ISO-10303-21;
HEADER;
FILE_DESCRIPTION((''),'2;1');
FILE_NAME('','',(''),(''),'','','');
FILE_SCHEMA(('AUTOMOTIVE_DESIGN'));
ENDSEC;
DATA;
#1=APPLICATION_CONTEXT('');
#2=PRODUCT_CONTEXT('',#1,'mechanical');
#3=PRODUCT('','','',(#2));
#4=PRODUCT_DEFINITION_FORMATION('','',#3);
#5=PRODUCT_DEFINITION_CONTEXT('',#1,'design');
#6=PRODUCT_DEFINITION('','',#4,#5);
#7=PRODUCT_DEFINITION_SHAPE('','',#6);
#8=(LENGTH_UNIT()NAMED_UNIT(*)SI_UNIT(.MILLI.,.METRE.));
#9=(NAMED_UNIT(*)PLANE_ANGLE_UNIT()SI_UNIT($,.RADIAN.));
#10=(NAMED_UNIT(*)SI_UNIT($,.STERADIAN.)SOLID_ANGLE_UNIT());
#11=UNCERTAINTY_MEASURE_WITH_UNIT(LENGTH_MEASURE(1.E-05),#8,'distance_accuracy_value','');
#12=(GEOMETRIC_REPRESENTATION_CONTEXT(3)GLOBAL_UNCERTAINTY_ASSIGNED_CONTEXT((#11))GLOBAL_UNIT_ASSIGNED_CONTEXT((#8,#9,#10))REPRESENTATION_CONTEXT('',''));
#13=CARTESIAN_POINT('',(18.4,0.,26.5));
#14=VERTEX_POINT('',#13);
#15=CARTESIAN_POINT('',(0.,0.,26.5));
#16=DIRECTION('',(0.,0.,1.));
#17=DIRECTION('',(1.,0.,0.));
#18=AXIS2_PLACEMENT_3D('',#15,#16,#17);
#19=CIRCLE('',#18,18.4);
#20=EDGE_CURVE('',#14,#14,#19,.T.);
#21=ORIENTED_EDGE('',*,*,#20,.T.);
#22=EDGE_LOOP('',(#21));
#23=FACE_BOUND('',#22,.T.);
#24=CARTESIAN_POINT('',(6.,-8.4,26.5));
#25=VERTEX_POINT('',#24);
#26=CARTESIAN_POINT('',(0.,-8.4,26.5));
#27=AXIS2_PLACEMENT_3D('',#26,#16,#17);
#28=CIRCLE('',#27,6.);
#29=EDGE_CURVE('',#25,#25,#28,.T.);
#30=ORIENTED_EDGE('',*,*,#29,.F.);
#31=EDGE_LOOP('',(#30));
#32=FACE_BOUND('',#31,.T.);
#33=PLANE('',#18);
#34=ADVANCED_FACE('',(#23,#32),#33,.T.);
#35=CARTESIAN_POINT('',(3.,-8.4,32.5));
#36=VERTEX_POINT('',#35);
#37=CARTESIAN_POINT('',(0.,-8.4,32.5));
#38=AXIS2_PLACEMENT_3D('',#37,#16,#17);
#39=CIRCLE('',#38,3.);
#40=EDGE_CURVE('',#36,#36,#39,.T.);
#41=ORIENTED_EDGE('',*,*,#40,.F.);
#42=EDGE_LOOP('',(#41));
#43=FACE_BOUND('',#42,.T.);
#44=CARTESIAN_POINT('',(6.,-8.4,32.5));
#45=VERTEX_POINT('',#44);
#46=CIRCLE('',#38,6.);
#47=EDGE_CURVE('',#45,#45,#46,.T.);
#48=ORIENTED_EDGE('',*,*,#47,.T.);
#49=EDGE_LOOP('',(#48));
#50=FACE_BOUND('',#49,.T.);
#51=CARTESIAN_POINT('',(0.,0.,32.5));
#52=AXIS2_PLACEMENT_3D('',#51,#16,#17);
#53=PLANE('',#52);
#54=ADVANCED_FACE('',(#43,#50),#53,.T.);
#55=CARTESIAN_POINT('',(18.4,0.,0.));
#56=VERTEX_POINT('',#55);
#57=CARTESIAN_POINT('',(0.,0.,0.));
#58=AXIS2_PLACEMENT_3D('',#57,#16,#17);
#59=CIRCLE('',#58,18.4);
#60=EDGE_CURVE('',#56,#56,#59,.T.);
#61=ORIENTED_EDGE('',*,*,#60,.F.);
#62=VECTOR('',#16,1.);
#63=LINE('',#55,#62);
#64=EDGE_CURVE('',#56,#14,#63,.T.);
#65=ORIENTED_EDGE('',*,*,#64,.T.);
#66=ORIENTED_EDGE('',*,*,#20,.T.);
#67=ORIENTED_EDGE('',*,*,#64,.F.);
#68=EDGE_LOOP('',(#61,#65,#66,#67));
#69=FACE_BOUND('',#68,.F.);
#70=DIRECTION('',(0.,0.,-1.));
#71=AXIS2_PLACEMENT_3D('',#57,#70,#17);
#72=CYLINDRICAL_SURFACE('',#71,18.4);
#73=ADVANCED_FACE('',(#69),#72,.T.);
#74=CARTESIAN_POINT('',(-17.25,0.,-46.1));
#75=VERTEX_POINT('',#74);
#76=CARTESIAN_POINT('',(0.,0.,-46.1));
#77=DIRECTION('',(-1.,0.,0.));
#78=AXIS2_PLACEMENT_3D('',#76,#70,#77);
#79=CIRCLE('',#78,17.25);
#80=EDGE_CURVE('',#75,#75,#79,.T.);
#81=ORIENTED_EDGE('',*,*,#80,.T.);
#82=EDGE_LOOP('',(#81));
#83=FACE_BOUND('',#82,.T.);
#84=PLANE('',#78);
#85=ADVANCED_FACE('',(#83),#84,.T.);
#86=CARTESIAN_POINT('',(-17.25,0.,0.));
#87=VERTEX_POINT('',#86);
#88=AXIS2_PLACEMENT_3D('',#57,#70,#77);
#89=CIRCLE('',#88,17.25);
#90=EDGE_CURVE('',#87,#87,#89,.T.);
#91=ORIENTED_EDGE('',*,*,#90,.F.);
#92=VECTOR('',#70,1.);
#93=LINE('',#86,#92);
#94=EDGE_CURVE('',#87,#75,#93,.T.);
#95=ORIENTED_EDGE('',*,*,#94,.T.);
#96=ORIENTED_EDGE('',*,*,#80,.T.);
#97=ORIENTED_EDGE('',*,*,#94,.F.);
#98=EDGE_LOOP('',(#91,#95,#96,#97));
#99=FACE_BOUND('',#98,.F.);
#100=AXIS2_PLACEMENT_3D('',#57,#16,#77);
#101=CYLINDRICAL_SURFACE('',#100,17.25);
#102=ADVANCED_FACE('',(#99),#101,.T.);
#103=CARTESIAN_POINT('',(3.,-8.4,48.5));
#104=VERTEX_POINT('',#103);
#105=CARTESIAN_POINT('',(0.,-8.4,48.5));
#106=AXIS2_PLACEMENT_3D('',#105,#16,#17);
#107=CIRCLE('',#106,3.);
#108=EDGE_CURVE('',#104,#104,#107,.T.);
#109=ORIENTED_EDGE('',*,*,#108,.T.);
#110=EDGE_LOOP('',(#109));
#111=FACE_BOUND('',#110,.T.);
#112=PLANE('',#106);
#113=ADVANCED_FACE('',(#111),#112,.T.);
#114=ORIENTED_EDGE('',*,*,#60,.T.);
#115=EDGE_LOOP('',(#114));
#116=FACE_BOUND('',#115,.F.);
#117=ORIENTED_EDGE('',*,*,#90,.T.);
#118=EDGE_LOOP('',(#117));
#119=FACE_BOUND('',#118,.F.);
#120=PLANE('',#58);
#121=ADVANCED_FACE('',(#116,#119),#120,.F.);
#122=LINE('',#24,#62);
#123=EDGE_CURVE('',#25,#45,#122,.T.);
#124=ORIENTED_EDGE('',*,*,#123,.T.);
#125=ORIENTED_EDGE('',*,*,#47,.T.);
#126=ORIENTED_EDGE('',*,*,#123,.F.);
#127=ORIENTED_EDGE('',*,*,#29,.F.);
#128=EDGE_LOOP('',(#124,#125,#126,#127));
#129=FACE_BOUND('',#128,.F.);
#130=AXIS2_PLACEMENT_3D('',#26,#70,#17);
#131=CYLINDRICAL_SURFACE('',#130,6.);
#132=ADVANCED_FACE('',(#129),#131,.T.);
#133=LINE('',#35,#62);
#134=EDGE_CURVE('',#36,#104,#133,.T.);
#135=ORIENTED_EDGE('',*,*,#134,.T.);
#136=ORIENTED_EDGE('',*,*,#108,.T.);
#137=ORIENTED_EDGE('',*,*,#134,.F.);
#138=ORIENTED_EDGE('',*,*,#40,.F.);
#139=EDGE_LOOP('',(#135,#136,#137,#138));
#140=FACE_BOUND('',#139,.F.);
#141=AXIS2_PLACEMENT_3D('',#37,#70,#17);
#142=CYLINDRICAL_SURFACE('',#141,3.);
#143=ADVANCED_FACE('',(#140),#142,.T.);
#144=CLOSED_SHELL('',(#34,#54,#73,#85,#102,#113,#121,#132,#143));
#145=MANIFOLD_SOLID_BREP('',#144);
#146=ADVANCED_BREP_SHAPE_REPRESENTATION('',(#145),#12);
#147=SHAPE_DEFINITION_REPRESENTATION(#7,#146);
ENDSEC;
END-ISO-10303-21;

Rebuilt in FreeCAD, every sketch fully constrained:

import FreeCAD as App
import Part
import Sketcher
Q = App.Units.Quantity

doc = App.newDocument("Part")
body = doc.addObject("PartDesign::Body", "Body")

sketch1 = doc.addObject("Sketcher::SketchObject", "Sketch")
body.addObject(sketch1)
sketch1.AttachmentSupport = (doc.XY_Plane, [""])
sketch1.MapMode = "FlatFace"
sketch1.addGeometry(Part.Circle(App.Vector(0, 0, 0), App.Vector(0, 0, 1), 18), False)
sketch1.addConstraint(Sketcher.Constraint("Coincident", 0, 3, -1, 1))
sketch1.addConstraint(Sketcher.Constraint("Diameter", 0, Q("36.8 mm")))
pad1 = doc.addObject("PartDesign::Pad", "Pad")
body.addObject(pad1)
pad1.Profile = sketch1
pad1.Length = 26.5

sketch2 = doc.addObject("Sketcher::SketchObject", "Sketch001")
body.addObject(sketch2)
sketch2.AttachmentSupport = (doc.XY_Plane, [""])
sketch2.MapMode = "FlatFace"
sketch2.addGeometry(Part.Circle(App.Vector(0, 0, 0), App.Vector(0, 0, 1), 17), False)
sketch2.addConstraint(Sketcher.Constraint("Coincident", 0, 3, -1, 1))
sketch2.addConstraint(Sketcher.Constraint("Diameter", 0, Q("34.5 mm")))
pad2 = doc.addObject("PartDesign::Pad", "Pad001")
body.addObject(pad2)
pad2.Profile = sketch2
pad2.Length = 46.1
pad2.Reversed = True

sketch3 = doc.addObject("Sketcher::SketchObject", "Sketch002")
body.addObject(sketch3)
sketch3.AttachmentSupport = (doc.XY_Plane, [""])
sketch3.MapMode = "FlatFace"
sketch3.AttachmentOffset = App.Placement(App.Vector(0, 0, 26.5), App.Rotation())
sketch3.addGeometry(Part.Circle(App.Vector(0, -8, 0), App.Vector(0, 0, 1), 6), False)
sketch3.addConstraint(Sketcher.Constraint("PointOnObject", 0, 3, -2))
sketch3.addConstraint(Sketcher.Constraint("Diameter", 0, Q("12 mm")))
sketch3.addConstraint(Sketcher.Constraint("DistanceY", 0, 3, -1, 1, Q("8.4 mm")))
pad3 = doc.addObject("PartDesign::Pad", "Pad002")
body.addObject(pad3)
pad3.Profile = sketch3
pad3.Length = 6

sketch4 = doc.addObject("Sketcher::SketchObject", "Sketch003")
body.addObject(sketch4)
sketch4.AttachmentSupport = (doc.XY_Plane, [""])
sketch4.MapMode = "FlatFace"
sketch4.AttachmentOffset = App.Placement(App.Vector(0, 0, 32.5), App.Rotation())
sketch4.addGeometry(Part.Circle(App.Vector(0, -8.4, 0), App.Vector(0, 0, 1), 3), False)
sketch4.addConstraint(Sketcher.Constraint("PointOnObject", 0, 3, -2))
sketch4.addConstraint(Sketcher.Constraint("Diameter", 0, Q("6 mm")))
sketch4.addConstraint(Sketcher.Constraint("DistanceY", 0, 3, -1, 1, Q("8.4 mm")))
pad4 = doc.addObject("PartDesign::Pad", "Pad003")
body.addObject(pad4)
pad4.Profile = sketch4
pad4.Length = 16

doc.recompute()
